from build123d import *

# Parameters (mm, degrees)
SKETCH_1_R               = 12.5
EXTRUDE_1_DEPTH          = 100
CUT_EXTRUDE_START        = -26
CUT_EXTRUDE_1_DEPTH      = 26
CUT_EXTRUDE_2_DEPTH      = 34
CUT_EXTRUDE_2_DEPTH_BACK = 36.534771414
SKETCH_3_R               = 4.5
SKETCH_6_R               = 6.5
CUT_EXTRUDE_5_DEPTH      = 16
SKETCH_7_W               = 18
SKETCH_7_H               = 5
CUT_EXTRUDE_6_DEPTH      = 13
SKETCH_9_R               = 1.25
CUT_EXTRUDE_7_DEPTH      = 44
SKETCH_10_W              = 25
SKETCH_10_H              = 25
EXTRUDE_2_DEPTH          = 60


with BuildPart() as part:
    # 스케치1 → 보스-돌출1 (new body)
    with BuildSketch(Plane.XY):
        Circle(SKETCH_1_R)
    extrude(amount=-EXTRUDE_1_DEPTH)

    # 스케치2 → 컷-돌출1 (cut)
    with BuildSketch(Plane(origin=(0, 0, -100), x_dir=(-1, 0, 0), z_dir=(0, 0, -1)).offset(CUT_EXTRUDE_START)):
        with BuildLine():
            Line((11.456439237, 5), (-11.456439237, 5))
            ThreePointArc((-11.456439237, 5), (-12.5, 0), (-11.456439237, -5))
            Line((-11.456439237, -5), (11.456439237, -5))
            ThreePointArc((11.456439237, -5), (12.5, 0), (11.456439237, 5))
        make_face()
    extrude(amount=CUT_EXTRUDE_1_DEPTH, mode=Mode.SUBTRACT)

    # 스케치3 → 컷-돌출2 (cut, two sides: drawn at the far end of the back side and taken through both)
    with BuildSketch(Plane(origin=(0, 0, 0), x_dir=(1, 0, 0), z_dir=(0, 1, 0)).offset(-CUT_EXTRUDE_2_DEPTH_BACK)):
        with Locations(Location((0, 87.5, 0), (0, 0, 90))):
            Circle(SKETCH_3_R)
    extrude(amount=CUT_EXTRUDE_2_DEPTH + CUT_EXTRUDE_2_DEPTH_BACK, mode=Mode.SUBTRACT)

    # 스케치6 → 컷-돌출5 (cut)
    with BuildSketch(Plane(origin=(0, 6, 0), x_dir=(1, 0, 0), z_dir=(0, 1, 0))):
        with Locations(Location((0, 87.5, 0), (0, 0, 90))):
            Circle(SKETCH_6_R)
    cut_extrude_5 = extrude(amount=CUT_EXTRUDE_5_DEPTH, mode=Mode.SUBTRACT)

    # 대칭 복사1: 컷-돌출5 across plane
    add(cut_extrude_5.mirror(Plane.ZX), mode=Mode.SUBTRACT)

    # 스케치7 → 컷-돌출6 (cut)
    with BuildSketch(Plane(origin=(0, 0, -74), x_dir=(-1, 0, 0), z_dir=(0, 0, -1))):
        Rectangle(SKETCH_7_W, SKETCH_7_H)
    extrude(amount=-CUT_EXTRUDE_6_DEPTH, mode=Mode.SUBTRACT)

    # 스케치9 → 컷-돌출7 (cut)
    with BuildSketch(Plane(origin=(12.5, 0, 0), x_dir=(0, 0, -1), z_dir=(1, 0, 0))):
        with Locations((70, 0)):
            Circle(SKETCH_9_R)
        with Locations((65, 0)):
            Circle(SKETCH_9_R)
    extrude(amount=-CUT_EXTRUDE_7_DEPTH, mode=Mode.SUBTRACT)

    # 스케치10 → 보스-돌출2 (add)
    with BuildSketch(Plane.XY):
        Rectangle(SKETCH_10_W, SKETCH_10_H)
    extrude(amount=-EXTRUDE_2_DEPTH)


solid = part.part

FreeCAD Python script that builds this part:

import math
import FreeCAD as App
import Part
import Sketcher
from FreeCAD import Vector

doc = App.newDocument("Part")
body = doc.addObject("PartDesign::Body", "Body")

# Sketch on XY plane
sketch1 = body.newObject("Sketcher::SketchObject", "Sketch")
sketch1.AttachmentSupport = (doc.getObject("XY_Plane"), [""])
sketch1.MapMode = "FlatFace"
sketch1.addGeometry(Part.Circle(Vector(0, 0, 0), Vector(0, 0, 1), 12), False)
sketch1.addConstraint([
    Sketcher.Constraint("Coincident", 0, 3, -1, 1),
    Sketcher.Constraint("Diameter", 0, 25.0),
])
pad1 = body.newObject("PartDesign::Pad", "Pad")
pad1.Profile = sketch1
pad1.Length = 100
pad1.Reversed = True

# Sketch on XY plane
sketch2 = body.newObject("Sketcher::SketchObject", "Sketch001")
sketch2.AttachmentSupport = (doc.getObject("XY_Plane"), [""])
sketch2.MapMode = "FlatFace"
sketch2.AttachmentOffset = App.Placement(Vector(0, 0, -74), App.Rotation())
sketch2.addGeometry([
    Part.LineSegment(Vector(-11, 5, 0), Vector(11, 5, 0)),
    Part.ArcOfCircle(Part.Circle(Vector(0, 0, 0), Vector(0, 0, 1), 12), math.radians(-24), math.radians(24)),
    Part.LineSegment(Vector(11, -5, 0), Vector(-11, -5, 0)),
    Part.ArcOfCircle(Part.Circle(Vector(0, 0, 0), Vector(0, 0, 1), 12), math.radians(156), math.radians(204)),
], False)
sketch2.addConstraint([
    Sketcher.Constraint("Coincident", 0, 2, 1, 2),
    Sketcher.Constraint("Coincident", 1, 1, 2, 1),
    Sketcher.Constraint("Coincident", 2, 2, 3, 2),
    Sketcher.Constraint("Coincident", 3, 1, 0, 1),
    Sketcher.Constraint("Horizontal", 0),
    Sketcher.Constraint("Horizontal", 2),
    Sketcher.Constraint("Coincident", 1, 3, -1, 1),
    Sketcher.Constraint("Coincident", 3, 3, -1, 1),
    Sketcher.Constraint("Equal", 1, 3),
    Sketcher.Constraint("Vertical", 0, 2, 1, 1),
    Sketcher.Constraint("Radius", 1, 12.5),
    Sketcher.Constraint("DistanceY", -1, 1, 0, 2, 5.0),
])
pocket1 = body.newObject("PartDesign::Pocket", "Pocket")
pocket1.Profile = sketch2
pocket1.Length = 26

# Sketch on XZ plane
sketch3 = body.newObject("Sketcher::SketchObject", "Sketch002")
sketch3.AttachmentSupport = (doc.getObject("XZ_Plane"), [""])
sketch3.MapMode = "FlatFace"
sketch3.addGeometry(Part.Circle(Vector(0, -87.5, 0), Vector(0, 0, 1), 4.5), False)
sketch3.addConstraint([
    Sketcher.Constraint("PointOnObject", 0, 3, -2),
    Sketcher.Constraint("Diameter", 0, 9.0),
    Sketcher.Constraint("DistanceY", 0, 3, -1, 1, 87.5),
])
pocket2 = body.newObject("PartDesign::Pocket", "Pocket001")
pocket2.Profile = sketch3
pocket2.Type = "ThroughAll"
pocket2.Midplane = True

# Sketch on XZ plane
sketch4 = body.newObject("Sketcher::SketchObject", "Sketch003")
sketch4.AttachmentSupport = (doc.getObject("XZ_Plane"), [""])
sketch4.MapMode = "FlatFace"
sketch4.AttachmentOffset = App.Placement(Vector(0, 0, -6), App.Rotation())
sketch4.addGeometry(Part.Circle(Vector(0, -88, 0), Vector(0, 0, 1), 6), False)
sketch4.addConstraint([
    Sketcher.Constraint("PointOnObject", 0, 3, -2),
    Sketcher.Constraint("Diameter", 0, 13.0),
    Sketcher.Constraint("DistanceY", 0, 3, -1, 1, 87.5),
])
pocket3 = body.newObject("PartDesign::Pocket", "Pocket002")
pocket3.Profile = sketch4
pocket3.Length = 16
doc.recompute()

mirrored = body.newObject("PartDesign::Mirrored", "Mirrored")
mirrored.Originals = [pocket3]
mirrored.MirrorPlane = (doc.getObject("XZ_Plane"), [""])
body.Tip = mirrored

# Sketch on XY plane
sketch5 = body.newObject("Sketcher::SketchObject", "Sketch004")
sketch5.AttachmentSupport = (doc.getObject("XY_Plane"), [""])
sketch5.MapMode = "FlatFace"
sketch5.AttachmentOffset = App.Placement(Vector(0, 0, -74), App.Rotation())
sketch5.addGeometry([
    Part.LineSegment(Vector(9, 2, 0), Vector(9, -2, 0)),
    Part.LineSegment(Vector(9, -2, 0), Vector(-9, -2, 0)),
    Part.LineSegment(Vector(-9, -2, 0), Vector(-9, 2, 0)),
    Part.LineSegment(Vector(-9, 2, 0), Vector(9, 2, 0)),
], False)
sketch5.addConstraint([
    Sketcher.Constraint("Coincident", 0, 2, 1, 1),
    Sketcher.Constraint("Coincident", 1, 2, 2, 1),
    Sketcher.Constraint("Coincident", 2, 2, 3, 1),
    Sketcher.Constraint("Coincident", 3, 2, 0, 1),
    Sketcher.Constraint("Vertical", 0),
    Sketcher.Constraint("Horizontal", 1),
    Sketcher.Constraint("Vertical", 2),
    Sketcher.Constraint("Horizontal", 3),
    Sketcher.Constraint("Symmetric", 0, 2, 2, 2, -1, 1),
    Sketcher.Constraint("DistanceX", 1, 2, 1, 1, 18.0),
    Sketcher.Constraint("DistanceY", 0, 2, 0, 1, 5.0),
])
pocket4 = body.newObject("PartDesign::Pocket", "Pocket003")
pocket4.Profile = sketch5
pocket4.Length = 13
pocket4.Reversed = True

# Sketch on YZ plane
sketch6 = body.newObject("Sketcher::SketchObject", "Sketch005")
sketch6.AttachmentSupport = (doc.getObject("YZ_Plane"), [""])
sketch6.MapMode = "FlatFace"
sketch6.AttachmentOffset = App.Placement(Vector(0, 0, 12.5), App.Rotation())
sketch6.addGeometry([
    Part.Circle(Vector(0, -70, 0), Vector(0, 0, 1), 1.2),
    Part.Circle(Vector(0, -65, 0), Vector(0, 0, 1), 1.2),
], False)
sketch6.addConstraint([
    Sketcher.Constraint("Equal", 0, 1),
    Sketcher.Constraint("PointOnObject", 0, 3, -2),
    Sketcher.Constraint("PointOnObject", 1, 3, -2),
    Sketcher.Constraint("Diameter", 0, 2.5),
    Sketcher.Constraint("DistanceY", 0, 3, -1, 1, 70.0),
    Sketcher.Constraint("DistanceY", 1, 3, -1, 1, 65.0),
])
pocket5 = body.newObject("PartDesign::Pocket", "Pocket004")
pocket5.Profile = sketch6
pocket5.Length = 44

# Sketch on XY plane
sketch7 = body.newObject("Sketcher::SketchObject", "Sketch006")
sketch7.AttachmentSupport = (doc.getObject("XY_Plane"), [""])
sketch7.MapMode = "FlatFace"
sketch7.addGeometry([
    Part.LineSegment(Vector(-12, 12, 0), Vector(-12, -12, 0)),
    Part.LineSegment(Vector(-12, -12, 0), Vector(12, -12, 0)),
    Part.LineSegment(Vector(12, -12, 0), Vector(12, 12, 0)),
    Part.LineSegment(Vector(12, 12, 0), Vector(-12, 12, 0)),
], False)
sketch7.addConstraint([
    Sketcher.Constraint("Coincident", 0, 2, 1, 1),
    Sketcher.Constraint("Coincident", 1, 2, 2, 1),
    Sketcher.Constraint("Coincident", 2, 2, 3, 1),
    Sketcher.Constraint("Coincident", 3, 2, 0, 1),
    Sketcher.Constraint("Vertical", 0),
    Sketcher.Constraint("Horizontal", 1),
    Sketcher.Constraint("Vertical", 2),
    Sketcher.Constraint("Horizontal", 3),
    Sketcher.Constraint("Symmetric", 0, 2, 2, 2, -1, 1),
    Sketcher.Constraint("Equal", 3, 0),
    Sketcher.Constraint("DistanceX", 1, 1, 1, 2, 25.0),
])
pad2 = body.newObject("PartDesign::Pad", "Pad001")
pad2.Profile = sketch7
pad2.Length = 60
pad2.Reversed = True

doc.recompute()
